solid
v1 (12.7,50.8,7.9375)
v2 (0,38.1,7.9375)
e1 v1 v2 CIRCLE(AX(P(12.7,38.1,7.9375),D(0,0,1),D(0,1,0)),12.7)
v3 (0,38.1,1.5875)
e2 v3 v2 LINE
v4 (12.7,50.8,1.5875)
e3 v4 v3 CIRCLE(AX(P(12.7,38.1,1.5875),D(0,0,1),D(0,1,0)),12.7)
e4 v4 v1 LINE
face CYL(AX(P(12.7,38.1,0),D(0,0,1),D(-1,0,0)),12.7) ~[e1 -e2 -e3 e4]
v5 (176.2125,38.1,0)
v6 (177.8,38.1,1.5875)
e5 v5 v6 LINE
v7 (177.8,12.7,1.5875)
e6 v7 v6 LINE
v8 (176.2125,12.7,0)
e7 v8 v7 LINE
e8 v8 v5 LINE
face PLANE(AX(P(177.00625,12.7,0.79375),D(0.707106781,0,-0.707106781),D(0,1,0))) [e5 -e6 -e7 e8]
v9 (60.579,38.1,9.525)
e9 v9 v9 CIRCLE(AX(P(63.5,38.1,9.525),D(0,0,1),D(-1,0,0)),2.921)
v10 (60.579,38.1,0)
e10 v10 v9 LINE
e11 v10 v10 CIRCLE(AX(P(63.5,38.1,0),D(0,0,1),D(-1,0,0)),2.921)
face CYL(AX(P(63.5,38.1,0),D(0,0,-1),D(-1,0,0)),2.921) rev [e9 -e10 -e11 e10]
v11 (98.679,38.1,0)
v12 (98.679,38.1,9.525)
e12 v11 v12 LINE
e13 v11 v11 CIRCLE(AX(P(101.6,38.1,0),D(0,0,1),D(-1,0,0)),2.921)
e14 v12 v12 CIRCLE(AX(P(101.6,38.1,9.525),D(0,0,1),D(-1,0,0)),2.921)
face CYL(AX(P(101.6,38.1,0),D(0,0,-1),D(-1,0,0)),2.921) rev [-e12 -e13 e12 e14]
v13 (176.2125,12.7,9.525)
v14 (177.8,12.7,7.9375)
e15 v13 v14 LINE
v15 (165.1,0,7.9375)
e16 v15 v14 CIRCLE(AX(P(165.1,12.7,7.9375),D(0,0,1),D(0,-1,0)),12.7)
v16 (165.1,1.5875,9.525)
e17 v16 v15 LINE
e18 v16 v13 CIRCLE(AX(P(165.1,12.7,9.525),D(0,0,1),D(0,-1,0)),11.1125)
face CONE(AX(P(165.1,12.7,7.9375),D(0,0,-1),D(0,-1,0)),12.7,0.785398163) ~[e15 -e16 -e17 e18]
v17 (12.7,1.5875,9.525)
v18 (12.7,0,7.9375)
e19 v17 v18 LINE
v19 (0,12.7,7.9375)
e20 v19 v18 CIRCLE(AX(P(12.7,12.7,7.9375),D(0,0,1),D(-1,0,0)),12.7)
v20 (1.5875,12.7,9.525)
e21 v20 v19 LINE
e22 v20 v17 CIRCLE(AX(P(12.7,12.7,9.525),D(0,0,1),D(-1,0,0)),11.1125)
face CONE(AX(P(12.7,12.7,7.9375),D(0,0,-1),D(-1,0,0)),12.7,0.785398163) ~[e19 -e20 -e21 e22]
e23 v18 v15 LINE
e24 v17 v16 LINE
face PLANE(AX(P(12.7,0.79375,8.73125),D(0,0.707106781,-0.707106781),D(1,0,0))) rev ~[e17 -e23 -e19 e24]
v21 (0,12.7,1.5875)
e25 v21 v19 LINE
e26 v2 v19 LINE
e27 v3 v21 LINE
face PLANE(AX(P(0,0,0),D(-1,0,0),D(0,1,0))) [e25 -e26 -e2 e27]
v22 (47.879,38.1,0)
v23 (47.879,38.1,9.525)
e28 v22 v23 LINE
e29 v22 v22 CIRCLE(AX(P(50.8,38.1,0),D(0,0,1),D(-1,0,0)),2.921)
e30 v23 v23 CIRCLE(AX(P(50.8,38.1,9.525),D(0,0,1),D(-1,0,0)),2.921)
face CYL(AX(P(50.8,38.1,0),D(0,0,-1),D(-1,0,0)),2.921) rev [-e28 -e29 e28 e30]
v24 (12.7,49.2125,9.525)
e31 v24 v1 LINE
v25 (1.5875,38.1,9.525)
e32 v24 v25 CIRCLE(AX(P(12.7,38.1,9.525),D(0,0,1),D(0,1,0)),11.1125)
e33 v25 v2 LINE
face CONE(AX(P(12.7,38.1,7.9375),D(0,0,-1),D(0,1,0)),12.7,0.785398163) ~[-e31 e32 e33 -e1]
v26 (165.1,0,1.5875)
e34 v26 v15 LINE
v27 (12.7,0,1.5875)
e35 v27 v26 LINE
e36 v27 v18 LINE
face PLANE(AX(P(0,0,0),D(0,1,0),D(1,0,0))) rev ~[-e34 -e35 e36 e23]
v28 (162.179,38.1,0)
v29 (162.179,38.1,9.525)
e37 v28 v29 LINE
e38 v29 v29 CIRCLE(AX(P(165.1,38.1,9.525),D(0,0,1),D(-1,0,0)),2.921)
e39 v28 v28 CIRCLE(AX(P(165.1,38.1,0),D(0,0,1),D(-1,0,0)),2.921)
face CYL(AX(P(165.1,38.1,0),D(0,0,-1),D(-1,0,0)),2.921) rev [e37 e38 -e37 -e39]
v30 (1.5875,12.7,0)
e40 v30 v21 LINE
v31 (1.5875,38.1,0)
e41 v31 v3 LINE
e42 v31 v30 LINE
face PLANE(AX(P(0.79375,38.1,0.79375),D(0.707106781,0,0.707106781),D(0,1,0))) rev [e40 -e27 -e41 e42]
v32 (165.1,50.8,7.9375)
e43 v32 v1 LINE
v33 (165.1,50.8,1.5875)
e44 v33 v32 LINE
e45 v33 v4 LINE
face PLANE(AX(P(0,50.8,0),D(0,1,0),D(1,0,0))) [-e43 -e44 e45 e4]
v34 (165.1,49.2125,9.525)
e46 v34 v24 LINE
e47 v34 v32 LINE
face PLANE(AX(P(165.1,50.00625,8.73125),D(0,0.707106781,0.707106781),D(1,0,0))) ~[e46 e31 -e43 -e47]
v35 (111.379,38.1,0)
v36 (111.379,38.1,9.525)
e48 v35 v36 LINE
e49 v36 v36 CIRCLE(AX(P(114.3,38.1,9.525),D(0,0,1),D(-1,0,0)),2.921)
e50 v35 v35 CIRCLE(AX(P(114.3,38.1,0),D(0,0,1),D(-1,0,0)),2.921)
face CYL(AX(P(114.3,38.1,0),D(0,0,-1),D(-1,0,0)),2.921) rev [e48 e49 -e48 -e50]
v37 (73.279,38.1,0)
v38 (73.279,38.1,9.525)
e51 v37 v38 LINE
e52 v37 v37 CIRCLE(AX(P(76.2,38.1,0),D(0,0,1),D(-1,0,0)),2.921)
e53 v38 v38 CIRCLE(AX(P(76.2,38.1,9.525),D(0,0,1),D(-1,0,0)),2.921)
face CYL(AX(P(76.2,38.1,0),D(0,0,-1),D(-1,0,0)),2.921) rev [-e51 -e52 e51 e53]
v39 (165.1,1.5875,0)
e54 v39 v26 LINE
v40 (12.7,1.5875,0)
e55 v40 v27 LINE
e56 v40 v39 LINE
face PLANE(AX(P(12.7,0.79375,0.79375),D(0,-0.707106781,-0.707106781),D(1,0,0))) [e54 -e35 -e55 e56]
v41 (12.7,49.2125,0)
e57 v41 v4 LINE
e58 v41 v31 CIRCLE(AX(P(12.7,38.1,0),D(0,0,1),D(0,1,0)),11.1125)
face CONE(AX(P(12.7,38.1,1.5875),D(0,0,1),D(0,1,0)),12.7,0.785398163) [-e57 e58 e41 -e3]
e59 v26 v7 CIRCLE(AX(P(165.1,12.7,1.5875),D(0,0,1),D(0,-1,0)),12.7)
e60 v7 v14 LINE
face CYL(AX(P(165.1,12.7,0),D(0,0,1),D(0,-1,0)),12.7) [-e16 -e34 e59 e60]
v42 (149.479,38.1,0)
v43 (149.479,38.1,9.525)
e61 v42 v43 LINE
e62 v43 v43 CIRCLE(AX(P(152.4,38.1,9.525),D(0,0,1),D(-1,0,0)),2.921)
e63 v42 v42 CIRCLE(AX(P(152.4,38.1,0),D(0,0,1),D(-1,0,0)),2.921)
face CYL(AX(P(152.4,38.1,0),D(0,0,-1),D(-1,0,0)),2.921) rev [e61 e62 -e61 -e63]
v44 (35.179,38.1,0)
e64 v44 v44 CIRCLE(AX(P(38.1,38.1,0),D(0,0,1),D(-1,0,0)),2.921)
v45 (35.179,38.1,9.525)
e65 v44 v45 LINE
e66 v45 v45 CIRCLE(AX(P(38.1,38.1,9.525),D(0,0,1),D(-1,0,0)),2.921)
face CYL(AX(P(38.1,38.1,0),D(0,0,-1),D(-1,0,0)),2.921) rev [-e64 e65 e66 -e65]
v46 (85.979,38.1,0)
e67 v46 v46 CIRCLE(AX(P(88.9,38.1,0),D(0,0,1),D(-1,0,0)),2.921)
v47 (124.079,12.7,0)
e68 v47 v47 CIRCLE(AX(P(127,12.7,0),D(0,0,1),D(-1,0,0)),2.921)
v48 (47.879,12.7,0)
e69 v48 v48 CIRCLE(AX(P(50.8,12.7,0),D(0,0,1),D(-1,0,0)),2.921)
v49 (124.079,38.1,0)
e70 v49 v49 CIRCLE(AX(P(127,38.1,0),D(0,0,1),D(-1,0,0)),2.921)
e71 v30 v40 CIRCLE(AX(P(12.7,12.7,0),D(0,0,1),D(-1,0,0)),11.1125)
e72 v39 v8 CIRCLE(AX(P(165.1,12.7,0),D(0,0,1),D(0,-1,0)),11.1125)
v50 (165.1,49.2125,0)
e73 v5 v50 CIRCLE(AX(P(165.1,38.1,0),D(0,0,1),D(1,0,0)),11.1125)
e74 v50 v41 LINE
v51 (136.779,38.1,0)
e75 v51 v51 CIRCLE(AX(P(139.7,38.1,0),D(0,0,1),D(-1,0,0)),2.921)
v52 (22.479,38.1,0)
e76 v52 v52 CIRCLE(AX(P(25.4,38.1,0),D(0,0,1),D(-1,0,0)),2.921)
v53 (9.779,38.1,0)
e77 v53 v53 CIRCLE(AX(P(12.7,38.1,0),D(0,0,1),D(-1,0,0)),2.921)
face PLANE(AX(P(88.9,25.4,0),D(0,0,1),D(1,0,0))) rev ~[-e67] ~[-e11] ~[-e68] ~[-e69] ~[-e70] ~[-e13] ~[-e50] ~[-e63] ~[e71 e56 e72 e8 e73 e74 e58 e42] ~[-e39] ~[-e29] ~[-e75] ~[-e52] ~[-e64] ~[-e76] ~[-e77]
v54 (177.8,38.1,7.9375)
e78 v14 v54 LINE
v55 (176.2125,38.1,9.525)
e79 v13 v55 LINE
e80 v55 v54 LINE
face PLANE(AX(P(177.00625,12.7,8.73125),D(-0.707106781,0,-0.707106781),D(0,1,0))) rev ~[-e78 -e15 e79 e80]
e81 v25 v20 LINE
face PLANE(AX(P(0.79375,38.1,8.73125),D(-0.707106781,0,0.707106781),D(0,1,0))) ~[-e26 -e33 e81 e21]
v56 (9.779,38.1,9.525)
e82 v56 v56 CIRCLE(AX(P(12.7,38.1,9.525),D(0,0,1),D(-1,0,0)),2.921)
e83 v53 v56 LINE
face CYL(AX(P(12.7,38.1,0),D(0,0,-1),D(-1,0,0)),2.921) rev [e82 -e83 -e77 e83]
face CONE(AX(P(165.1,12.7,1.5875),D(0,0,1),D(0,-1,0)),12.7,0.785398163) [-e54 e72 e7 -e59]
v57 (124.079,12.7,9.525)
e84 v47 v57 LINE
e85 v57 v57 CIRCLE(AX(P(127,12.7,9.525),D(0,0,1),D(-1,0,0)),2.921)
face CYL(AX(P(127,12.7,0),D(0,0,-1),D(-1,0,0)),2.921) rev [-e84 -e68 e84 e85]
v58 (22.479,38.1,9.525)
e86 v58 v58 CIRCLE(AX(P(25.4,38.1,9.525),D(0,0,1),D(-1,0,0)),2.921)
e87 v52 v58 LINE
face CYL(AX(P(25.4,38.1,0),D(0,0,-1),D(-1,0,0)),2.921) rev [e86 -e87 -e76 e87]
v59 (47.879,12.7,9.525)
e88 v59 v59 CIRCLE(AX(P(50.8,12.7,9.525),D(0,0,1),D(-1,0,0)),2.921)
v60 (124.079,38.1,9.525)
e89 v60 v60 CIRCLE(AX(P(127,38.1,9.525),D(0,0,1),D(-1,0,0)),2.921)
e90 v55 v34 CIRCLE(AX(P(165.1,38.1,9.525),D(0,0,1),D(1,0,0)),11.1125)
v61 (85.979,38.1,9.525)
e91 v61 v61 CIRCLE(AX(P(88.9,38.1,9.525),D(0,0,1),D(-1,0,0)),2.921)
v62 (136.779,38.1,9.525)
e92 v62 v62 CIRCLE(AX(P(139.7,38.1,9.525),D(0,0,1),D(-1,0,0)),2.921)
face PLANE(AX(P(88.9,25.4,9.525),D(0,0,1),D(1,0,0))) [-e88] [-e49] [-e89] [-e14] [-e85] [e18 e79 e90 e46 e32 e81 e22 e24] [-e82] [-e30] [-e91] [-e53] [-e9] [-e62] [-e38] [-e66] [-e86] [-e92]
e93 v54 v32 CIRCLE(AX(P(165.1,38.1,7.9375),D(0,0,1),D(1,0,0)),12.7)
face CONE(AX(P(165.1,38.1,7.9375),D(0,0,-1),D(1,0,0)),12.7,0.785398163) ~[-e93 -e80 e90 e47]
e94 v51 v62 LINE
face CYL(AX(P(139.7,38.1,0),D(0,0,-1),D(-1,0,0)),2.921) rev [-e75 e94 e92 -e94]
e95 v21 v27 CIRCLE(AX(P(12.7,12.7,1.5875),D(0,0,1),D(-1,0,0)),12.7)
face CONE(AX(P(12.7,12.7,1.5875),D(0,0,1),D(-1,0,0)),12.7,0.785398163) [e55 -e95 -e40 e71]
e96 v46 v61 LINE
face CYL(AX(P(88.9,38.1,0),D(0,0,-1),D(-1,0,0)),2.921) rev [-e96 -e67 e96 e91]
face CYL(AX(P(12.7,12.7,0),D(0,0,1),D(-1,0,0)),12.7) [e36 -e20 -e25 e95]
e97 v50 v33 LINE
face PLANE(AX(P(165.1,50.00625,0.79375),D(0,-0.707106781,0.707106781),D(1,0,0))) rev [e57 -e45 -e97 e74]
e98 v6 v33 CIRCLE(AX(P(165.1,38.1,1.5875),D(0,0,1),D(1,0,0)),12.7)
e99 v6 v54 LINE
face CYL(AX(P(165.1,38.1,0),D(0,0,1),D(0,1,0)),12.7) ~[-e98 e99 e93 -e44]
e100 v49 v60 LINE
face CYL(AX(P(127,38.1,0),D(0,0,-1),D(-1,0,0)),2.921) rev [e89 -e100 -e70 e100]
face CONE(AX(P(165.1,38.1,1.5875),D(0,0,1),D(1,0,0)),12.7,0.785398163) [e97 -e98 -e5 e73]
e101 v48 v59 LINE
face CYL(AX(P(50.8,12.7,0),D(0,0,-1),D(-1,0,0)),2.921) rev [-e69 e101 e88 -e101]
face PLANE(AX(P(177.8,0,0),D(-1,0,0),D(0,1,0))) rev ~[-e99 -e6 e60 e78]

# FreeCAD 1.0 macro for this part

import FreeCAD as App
import Part
import Sketcher
from FreeCAD import Vector
Q = App.Units.Quantity


def edges_at(feature, points):
    """Names of the edges that pass closest to the given points."""
    edges = feature.Shape.Edges
    near = lambda p: min(range(len(edges)), key=lambda i: edges[i].distToShape(Part.Vertex(*p))[0])
    return sorted({f"Edge{near(p) + 1}" for p in points})


def add_polygon(sketch, points):
    """Adds a closed chain of lines whose ends are joined by coincident constraints."""
    first, n = sketch.GeometryCount, len(points)
    for a, b in zip(points, points[1:] + points[:1]):
        sketch.addGeometry(Part.LineSegment(App.Vector(*a, 0), App.Vector(*b, 0)), False)
    for i in range(n):
        sketch.addConstraint(Sketcher.Constraint("Coincident", first + i, 2, first + (i + 1) % n, 1))

doc = App.newDocument("Part")
body = doc.addObject("PartDesign::Body", "Body")

# Sketch on XY plane
sketch1 = body.newObject("Sketcher::SketchObject", "Sketch")
sketch1.AttachmentSupport = (doc.getObject("XY_Plane"), [""])
sketch1.MapMode = "FlatFace"
add_polygon(sketch1, [(0, 50.8), (0, 0), (177.8, 0), (177.8, 50.8)])  # lines 0-3
sketch1.addGeometry(Part.Circle(Vector(50.8, 12.7, 0), Vector(0, 0, 1), 2.9), False)  # 4
sketch1.addGeometry(Part.Circle(Vector(127, 12.7, 0), Vector(0, 0, 1), 2.9), False)  # 5
sketch1.addGeometry(Part.Circle(Vector(12.7, 38.1, 0), Vector(0, 0, 1), 2.9), False)  # 6
sketch1.addGeometry(Part.Circle(Vector(25.4, 38.1, 0), Vector(0, 0, 1), 2.9), False)  # 7
sketch1.addGeometry(Part.Circle(Vector(38.1, 38.1, 0), Vector(0, 0, 1), 2.9), False)  # 8
sketch1.addGeometry(Part.Circle(Vector(50.8, 38.1, 0), Vector(0, 0, 1), 2.9), False)  # 9
sketch1.addGeometry(Part.Circle(Vector(63.5, 38.1, 0), Vector(0, 0, 1), 2.9), False)  # 10
sketch1.addGeometry(Part.Circle(Vector(76.2, 38.1, 0), Vector(0, 0, 1), 2.9), False)  # 11
sketch1.addGeometry(Part.Circle(Vector(88.9, 38.1, 0), Vector(0, 0, 1), 2.9), False)  # 12
sketch1.addGeometry(Part.Circle(Vector(101.6, 38.1, 0), Vector(0, 0, 1), 2.9), False)  # 13
sketch1.addGeometry(Part.Circle(Vector(114.3, 38.1, 0), Vector(0, 0, 1), 2.9), False)  # 14
sketch1.addGeometry(Part.Circle(Vector(127, 38.1, 0), Vector(0, 0, 1), 2.9), False)  # 15
sketch1.addGeometry(Part.Circle(Vector(139.7, 38.1, 0), Vector(0, 0, 1), 2.9), False)  # 16
sketch1.addGeometry(Part.Circle(Vector(152.4, 38.1, 0), Vector(0, 0, 1), 2.9), False)  # 17
sketch1.addGeometry(Part.Circle(Vector(165.1, 38.1, 0), Vector(0, 0, 1), 2.9), False)  # 18
sketch1.addConstraint(Sketcher.Constraint("Vertical", 0))
sketch1.addConstraint(Sketcher.Constraint("Horizontal", 1))
sketch1.addConstraint(Sketcher.Constraint("Vertical", 2))
sketch1.addConstraint(Sketcher.Constraint("Horizontal", 3))
sketch1.addConstraint(Sketcher.Constraint("Coincident", 0, 2, -1, 1))
sketch1.addConstraint(Sketcher.Constraint("Equal", 4, 5))
sketch1.addConstraint(Sketcher.Constraint("Equal", 5, 6))
sketch1.addConstraint(Sketcher.Constraint("Equal", 6, 7))
sketch1.addConstraint(Sketcher.Constraint("Equal", 7, 8))
sketch1.addConstraint(Sketcher.Constraint("Equal", 8, 9))
sketch1.addConstraint(Sketcher.Constraint("Equal", 9, 10))
sketch1.addConstraint(Sketcher.Constraint("Equal", 10, 11))
sketch1.addConstraint(Sketcher.Constraint("Equal", 11, 12))
sketch1.addConstraint(Sketcher.Constraint("Equal", 12, 13))
sketch1.addConstraint(Sketcher.Constraint("Equal", 13, 14))
sketch1.addConstraint(Sketcher.Constraint("Equal", 14, 15))
sketch1.addConstraint(Sketcher.Constraint("Equal", 15, 16))
sketch1.addConstraint(Sketcher.Constraint("Equal", 16, 17))
sketch1.addConstraint(Sketcher.Constraint("Equal", 17, 18))
sketch1.addConstraint(Sketcher.Constraint("Horizontal", 4, 3, 5, 3))
sketch1.addConstraint(Sketcher.Constraint("Horizontal", 6, 3, 7, 3))
sketch1.addConstraint(Sketcher.Constraint("Horizontal", 7, 3, 8, 3))
sketch1.addConstraint(Sketcher.Constraint("Horizontal", 8, 3, 9, 3))
sketch1.addConstraint(Sketcher.Constraint("Horizontal", 9, 3, 10, 3))
sketch1.addConstraint(Sketcher.Constraint("Horizontal", 10, 3, 11, 3))
sketch1.addConstraint(Sketcher.Constraint("Horizontal", 11, 3, 12, 3))
sketch1.addConstraint(Sketcher.Constraint("Horizontal", 12, 3, 13, 3))
sketch1.addConstraint(Sketcher.Constraint("Horizontal", 13, 3, 14, 3))
sketch1.addConstraint(Sketcher.Constraint("Horizontal", 14, 3, 15, 3))
sketch1.addConstraint(Sketcher.Constraint("Horizontal", 15, 3, 16, 3))
sketch1.addConstraint(Sketcher.Constraint("Horizontal", 16, 3, 17, 3))
sketch1.addConstraint(Sketcher.Constraint("Horizontal", 17, 3, 18, 3))
sketch1.addConstraint(Sketcher.Constraint("Vertical", 4, 3, 9, 3))
sketch1.addConstraint(Sketcher.Constraint("Vertical", 5, 3, 15, 3))
sketch1.addConstraint(Sketcher.Constraint("Diameter", 4, Q("0.23 in")))
sketch1.addConstraint(Sketcher.Constraint("DistanceX", 1, 1, 1, 2, Q("7 in")))
sketch1.addConstraint(Sketcher.Constraint("DistanceY", 0, 2, 0, 1, Q("2 in")))
sketch1.addConstraint(Sketcher.Constraint("DistanceX", -1, 1, 4, 3, Q("2 in")))
sketch1.addConstraint(Sketcher.Constraint("DistanceX", -1, 1, 5, 3, Q("5 in")))
sketch1.addConstraint(Sketcher.Constraint("DistanceX", -1, 1, 7, 3, Q("1 in")))
sketch1.addConstraint(Sketcher.Constraint("DistanceX", -1, 1, 11, 3, Q("3 in")))
sketch1.addConstraint(Sketcher.Constraint("DistanceX", -1, 1, 13, 3, Q("4 in")))
sketch1.addConstraint(Sketcher.Constraint("DistanceX", -1, 1, 17, 3, Q("6 in")))
sketch1.addConstraint(Sketcher.Constraint("DistanceY", 4, 3, 6, 3, Q("1 in")))
sketch1.addConstraint(Sketcher.Constraint("DistanceX", 6, 3, 8, 3, Q("1 in")))
sketch1.addConstraint(Sketcher.Constraint("DistanceX", 8, 3, 10, 3, Q("1 in")))
sketch1.addConstraint(Sketcher.Constraint("DistanceX", 10, 3, 12, 3, Q("1 in")))
sketch1.addConstraint(Sketcher.Constraint("DistanceX", 12, 3, 14, 3, Q("1 in")))
sketch1.addConstraint(Sketcher.Constraint("DistanceX", 14, 3, 16, 3, Q("1 in")))
sketch1.addConstraint(Sketcher.Constraint("DistanceX", 16, 3, 18, 3, Q("1 in")))
sketch1.addConstraint(Sketcher.Constraint("DistanceY", -1, 1, 4, 3, Q("0.5 in")))
sketch1.addConstraint(Sketcher.Constraint("DistanceX", -1, 1, 6, 3, Q("0.5 in")))
pad1 = body.newObject("PartDesign::Pad", "Pad")
pad1.Profile = sketch1
pad1.Length = Q("0.375 in")
doc.recompute()

fillet = body.newObject("PartDesign::Fillet", "Fillet")
fillet.Base = (pad1, edges_at(pad1, [
    (0, 50.8, 4.763),
    (177.8, 50.8, 4.763),
    (177.8, 0, 4.763),
    (0, 0, 4.763),
]))
fillet.Radius = Q("0.5 in")
doc.recompute()

chamfer = body.newObject("PartDesign::Chamfer", "Chamfer")
chamfer.Base = (fillet, edges_at(fillet, [
    (88.9, 0, 0),
    (88.9, 0, 9.525),
    (0, 25.4, 0),
    (88.9, 50.8, 0),
    (177.8, 25.4, 0),
    (174.08, 47.08, 0),
    (174.08, 3.72, 0),
    (3.72, 47.08, 0),
    (3.72, 3.72, 0),
    (0, 25.4, 9.525),
    (177.8, 25.4, 9.525),
    (88.9, 50.8, 9.525),
    (174.08, 47.08, 9.525),
    (174.08, 3.72, 9.525),
    (3.72, 47.08, 9.525),
    (3.72, 3.72, 9.525),
]))
chamfer.Size = Q("0.0625 in")

doc.recompute()
